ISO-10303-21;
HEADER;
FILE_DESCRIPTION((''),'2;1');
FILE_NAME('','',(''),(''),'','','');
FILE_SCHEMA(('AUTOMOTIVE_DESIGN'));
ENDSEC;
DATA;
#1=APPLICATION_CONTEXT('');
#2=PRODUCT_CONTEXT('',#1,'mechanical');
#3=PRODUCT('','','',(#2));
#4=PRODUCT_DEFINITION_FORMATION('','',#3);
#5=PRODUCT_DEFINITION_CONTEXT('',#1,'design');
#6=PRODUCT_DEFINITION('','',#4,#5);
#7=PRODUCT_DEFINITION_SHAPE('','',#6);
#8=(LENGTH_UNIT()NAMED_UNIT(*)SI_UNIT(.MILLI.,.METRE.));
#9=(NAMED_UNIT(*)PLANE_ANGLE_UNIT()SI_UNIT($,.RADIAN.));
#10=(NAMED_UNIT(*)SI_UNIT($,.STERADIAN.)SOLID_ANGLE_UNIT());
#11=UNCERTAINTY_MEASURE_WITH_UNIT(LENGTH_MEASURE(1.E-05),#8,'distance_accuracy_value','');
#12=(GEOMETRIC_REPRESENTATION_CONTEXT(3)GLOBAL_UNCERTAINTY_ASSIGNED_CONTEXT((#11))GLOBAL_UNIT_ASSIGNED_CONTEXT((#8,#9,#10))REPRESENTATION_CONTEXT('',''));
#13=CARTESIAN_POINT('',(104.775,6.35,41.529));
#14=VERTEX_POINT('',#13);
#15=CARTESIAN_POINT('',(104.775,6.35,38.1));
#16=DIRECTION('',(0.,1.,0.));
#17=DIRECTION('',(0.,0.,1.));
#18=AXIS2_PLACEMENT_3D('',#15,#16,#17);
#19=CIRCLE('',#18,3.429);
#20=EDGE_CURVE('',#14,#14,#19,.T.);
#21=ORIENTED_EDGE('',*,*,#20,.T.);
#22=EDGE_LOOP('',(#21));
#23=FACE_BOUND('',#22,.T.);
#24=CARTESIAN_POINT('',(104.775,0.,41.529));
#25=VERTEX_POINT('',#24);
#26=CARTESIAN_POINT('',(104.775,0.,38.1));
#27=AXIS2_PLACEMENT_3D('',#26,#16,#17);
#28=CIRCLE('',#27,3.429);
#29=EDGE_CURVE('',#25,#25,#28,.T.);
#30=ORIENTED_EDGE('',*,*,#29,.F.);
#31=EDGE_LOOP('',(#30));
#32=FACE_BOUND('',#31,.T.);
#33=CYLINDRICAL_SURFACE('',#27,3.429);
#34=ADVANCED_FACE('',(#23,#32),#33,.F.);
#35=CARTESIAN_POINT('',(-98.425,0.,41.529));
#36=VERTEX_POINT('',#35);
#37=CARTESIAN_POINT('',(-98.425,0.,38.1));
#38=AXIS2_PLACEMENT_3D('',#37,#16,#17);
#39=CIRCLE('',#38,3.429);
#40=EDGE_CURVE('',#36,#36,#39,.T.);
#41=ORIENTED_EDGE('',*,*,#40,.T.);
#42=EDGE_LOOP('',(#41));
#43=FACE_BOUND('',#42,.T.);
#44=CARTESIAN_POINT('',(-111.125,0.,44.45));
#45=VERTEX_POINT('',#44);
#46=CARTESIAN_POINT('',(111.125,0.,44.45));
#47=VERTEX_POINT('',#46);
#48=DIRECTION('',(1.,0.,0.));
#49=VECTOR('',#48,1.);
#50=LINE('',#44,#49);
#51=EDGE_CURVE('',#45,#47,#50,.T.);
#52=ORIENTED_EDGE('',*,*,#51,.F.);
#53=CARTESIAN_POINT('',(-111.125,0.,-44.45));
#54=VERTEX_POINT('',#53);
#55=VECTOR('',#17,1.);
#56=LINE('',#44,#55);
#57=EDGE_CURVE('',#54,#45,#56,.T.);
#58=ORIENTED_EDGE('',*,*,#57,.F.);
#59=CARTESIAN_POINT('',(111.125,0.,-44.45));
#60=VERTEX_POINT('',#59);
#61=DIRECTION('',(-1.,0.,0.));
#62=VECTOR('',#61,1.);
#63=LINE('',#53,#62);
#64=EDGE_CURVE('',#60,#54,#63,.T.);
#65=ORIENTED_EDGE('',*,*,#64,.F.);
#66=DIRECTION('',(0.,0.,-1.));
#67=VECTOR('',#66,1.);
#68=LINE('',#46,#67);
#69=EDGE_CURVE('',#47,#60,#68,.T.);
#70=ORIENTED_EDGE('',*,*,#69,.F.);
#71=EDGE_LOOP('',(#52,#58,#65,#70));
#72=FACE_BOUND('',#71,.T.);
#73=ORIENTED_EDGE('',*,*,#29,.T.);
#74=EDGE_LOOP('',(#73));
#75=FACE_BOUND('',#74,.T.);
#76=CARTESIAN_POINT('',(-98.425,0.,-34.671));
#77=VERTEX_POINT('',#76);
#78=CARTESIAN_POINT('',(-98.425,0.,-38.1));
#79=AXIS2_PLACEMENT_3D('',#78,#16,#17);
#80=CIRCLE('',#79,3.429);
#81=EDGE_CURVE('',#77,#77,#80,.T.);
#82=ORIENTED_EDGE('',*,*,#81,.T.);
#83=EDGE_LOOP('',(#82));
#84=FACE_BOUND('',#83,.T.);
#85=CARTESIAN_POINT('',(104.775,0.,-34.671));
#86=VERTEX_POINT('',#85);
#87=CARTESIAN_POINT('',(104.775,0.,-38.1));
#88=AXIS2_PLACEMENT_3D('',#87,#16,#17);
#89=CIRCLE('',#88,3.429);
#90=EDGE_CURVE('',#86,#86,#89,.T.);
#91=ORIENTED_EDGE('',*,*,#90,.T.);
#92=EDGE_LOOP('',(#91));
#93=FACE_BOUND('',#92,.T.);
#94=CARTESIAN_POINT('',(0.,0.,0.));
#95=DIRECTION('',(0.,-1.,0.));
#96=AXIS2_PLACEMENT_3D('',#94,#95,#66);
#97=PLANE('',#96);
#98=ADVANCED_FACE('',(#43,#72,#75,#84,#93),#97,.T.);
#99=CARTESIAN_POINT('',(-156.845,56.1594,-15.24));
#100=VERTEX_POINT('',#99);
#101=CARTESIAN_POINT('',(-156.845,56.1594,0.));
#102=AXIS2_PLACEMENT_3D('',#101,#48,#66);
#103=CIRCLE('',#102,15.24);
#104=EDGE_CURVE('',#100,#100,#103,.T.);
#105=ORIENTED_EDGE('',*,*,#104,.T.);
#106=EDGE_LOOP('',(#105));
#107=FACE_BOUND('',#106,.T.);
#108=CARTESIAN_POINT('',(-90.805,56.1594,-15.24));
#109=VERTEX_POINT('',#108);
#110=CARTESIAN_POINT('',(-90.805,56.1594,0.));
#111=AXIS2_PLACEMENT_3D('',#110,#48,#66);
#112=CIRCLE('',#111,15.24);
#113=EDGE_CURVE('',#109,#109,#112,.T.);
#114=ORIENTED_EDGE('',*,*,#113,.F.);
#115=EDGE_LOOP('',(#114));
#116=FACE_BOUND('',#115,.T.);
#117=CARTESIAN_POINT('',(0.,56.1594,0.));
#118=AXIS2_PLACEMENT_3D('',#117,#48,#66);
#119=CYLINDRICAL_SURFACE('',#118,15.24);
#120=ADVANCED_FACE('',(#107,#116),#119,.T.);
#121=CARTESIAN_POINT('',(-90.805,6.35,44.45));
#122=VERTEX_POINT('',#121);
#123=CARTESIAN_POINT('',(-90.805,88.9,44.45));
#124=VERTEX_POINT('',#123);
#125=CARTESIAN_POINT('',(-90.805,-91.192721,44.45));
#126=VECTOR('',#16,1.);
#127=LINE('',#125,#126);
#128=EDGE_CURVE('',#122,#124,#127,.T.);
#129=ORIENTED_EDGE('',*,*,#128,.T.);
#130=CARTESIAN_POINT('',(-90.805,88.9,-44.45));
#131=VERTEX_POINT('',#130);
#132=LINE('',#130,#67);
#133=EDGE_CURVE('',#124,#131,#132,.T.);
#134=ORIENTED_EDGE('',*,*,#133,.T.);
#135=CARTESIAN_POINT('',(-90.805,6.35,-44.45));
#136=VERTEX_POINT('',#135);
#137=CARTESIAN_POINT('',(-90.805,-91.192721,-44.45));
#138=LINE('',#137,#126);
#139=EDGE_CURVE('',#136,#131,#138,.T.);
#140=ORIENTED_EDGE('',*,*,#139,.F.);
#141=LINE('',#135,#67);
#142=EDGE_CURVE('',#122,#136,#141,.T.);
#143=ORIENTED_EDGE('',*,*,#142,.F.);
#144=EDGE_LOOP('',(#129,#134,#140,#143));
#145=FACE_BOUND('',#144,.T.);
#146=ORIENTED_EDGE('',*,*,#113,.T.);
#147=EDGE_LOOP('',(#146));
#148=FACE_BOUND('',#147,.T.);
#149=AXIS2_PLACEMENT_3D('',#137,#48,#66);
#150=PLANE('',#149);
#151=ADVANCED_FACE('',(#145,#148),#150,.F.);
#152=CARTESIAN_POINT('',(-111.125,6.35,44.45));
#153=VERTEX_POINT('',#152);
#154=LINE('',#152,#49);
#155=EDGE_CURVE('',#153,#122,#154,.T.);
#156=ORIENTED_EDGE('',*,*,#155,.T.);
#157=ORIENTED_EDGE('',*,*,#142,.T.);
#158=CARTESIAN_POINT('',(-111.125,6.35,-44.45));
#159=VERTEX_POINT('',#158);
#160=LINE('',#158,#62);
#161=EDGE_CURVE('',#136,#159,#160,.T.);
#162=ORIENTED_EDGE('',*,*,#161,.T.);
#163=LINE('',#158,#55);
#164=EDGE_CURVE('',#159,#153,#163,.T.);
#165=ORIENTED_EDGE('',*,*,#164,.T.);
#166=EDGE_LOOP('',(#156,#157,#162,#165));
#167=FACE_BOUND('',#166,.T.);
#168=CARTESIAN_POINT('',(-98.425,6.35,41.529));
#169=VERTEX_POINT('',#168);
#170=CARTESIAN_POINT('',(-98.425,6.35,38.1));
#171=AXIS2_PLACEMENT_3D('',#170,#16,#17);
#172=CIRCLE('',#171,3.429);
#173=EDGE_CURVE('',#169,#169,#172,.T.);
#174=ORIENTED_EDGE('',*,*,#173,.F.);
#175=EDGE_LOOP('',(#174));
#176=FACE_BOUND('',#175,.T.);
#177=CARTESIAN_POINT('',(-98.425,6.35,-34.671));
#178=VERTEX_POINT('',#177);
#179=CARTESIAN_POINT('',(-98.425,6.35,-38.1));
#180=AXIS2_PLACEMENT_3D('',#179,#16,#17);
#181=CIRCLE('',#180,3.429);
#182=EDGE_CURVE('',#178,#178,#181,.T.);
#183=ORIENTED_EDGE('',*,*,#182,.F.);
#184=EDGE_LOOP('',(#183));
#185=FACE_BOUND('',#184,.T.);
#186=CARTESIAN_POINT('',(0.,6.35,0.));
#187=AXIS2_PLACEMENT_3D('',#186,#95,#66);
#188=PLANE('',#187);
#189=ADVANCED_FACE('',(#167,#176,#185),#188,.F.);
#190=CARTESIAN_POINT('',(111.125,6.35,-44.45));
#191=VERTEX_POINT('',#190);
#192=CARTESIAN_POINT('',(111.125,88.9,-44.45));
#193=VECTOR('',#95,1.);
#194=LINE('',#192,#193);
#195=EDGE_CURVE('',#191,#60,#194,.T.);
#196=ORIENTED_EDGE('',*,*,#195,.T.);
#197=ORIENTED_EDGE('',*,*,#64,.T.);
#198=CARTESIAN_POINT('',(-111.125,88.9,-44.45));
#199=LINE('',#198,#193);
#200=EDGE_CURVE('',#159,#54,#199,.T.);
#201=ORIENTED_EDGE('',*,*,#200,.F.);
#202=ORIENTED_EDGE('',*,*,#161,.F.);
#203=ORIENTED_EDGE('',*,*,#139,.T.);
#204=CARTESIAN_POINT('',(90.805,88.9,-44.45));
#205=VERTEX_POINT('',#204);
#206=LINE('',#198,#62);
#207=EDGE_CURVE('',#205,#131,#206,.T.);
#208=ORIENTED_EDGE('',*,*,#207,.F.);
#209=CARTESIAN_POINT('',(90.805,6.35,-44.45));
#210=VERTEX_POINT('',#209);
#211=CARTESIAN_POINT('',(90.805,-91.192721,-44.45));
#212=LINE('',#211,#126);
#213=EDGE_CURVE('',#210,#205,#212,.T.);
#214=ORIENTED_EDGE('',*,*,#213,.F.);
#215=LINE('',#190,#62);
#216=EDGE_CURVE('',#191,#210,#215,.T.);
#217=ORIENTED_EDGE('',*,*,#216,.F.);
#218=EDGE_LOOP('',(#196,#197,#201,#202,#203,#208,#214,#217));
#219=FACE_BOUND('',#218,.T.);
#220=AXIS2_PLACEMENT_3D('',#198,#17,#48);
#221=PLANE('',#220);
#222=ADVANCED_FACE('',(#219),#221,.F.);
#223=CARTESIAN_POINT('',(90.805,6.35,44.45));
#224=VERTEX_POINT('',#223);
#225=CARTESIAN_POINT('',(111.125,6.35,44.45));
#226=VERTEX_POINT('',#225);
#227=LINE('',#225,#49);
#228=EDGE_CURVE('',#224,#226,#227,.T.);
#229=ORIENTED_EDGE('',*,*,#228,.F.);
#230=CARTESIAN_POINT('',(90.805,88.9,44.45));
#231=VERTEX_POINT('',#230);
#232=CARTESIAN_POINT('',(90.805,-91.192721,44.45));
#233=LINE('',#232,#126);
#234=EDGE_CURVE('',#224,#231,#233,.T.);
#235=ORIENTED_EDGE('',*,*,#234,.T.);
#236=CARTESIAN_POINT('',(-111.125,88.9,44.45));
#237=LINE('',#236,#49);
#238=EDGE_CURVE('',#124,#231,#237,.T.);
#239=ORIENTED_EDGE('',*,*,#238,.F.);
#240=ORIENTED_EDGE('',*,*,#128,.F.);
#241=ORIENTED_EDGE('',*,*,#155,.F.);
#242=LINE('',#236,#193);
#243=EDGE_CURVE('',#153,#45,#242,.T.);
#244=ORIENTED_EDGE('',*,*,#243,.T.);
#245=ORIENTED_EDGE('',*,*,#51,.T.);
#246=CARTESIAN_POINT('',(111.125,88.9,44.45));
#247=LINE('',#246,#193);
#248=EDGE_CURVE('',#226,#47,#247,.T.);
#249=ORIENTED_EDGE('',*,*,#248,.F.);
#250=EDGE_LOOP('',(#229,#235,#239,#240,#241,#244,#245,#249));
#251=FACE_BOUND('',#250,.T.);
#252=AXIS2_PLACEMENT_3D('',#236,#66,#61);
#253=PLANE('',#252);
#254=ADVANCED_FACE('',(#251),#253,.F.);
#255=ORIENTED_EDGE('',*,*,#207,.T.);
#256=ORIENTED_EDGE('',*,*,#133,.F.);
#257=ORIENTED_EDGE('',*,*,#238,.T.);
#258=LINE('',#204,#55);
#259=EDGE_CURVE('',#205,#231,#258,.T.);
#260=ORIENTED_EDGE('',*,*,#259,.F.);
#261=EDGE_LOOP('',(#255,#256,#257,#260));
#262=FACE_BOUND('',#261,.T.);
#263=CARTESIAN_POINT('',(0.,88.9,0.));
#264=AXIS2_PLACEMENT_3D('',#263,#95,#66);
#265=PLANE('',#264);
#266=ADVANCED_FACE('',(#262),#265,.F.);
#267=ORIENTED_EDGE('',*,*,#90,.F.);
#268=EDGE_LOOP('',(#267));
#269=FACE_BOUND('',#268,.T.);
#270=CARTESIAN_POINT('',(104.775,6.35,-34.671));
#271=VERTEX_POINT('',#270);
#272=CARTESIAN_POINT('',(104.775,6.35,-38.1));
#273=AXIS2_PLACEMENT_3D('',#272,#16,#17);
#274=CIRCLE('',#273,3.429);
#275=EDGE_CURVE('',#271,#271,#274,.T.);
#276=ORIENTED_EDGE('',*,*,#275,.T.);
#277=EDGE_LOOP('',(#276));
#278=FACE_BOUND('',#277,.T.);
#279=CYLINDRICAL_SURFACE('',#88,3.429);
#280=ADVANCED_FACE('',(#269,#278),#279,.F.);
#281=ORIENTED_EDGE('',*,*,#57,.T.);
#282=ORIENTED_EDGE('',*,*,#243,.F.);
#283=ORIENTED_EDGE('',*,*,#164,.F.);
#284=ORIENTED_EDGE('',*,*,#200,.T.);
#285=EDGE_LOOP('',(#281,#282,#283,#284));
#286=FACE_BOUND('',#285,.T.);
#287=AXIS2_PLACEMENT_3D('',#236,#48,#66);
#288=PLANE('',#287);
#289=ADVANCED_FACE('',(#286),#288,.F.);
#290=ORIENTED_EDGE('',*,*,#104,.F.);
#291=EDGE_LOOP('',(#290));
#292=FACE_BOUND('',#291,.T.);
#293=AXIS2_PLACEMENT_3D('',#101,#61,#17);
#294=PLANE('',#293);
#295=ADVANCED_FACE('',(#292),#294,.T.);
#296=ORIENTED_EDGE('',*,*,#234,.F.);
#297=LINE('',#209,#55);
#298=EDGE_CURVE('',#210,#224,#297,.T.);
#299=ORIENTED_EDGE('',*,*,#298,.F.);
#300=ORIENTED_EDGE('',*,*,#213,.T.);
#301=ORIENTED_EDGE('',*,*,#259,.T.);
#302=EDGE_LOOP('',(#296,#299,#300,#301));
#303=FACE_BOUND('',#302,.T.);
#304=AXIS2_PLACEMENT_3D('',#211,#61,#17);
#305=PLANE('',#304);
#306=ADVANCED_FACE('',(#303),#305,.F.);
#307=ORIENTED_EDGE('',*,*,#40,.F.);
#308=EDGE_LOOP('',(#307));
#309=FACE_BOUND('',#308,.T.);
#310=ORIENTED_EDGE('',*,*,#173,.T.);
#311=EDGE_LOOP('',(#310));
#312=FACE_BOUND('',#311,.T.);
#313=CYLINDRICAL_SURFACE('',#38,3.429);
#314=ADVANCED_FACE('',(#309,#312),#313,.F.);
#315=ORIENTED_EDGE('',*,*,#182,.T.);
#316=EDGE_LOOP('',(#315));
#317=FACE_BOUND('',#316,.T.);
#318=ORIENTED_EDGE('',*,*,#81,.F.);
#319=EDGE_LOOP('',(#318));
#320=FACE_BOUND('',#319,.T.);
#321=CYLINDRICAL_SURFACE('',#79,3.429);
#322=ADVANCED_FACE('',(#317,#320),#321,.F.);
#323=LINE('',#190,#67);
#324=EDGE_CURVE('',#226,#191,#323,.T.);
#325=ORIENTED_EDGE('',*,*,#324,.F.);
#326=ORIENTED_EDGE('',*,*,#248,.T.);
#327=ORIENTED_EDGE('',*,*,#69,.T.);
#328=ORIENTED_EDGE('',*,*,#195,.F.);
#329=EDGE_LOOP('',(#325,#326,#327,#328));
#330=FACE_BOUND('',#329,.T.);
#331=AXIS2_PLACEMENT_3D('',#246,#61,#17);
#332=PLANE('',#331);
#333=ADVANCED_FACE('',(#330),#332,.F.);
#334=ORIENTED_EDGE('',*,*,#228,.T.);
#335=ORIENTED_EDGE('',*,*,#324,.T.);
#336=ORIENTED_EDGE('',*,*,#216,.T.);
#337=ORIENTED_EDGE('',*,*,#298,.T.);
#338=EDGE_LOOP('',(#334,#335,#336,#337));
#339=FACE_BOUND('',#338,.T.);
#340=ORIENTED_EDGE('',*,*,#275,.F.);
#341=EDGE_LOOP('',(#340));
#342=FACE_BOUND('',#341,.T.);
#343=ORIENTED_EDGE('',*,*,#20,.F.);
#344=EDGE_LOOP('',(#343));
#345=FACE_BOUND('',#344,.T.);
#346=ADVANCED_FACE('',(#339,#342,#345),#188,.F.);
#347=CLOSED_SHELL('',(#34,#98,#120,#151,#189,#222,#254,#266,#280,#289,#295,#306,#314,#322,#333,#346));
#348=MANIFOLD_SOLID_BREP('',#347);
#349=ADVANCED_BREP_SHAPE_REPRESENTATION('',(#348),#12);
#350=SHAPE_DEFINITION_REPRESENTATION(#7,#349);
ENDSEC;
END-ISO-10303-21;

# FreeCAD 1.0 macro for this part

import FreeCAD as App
import Part
import Sketcher

V = App.Vector
Q = App.Units.Quantity

doc = App.newDocument("Part")
body = doc.addObject("PartDesign::Body", "Body")

# Sketch on XZ plane
sketch1 = body.newObject("Sketcher::SketchObject", "Sketch")
sketch1.AttachmentSupport = (doc.getObject("XZ_Plane"), [""])
sketch1.MapMode = "FlatFace"
sketch1.addGeometry([
    Part.LineSegment(V(-111, -44, 0), V(-111, 44, 0)),
    Part.LineSegment(V(-111, 44, 0), V(111, 44, 0)),
    Part.LineSegment(V(111, 44, 0), V(111, -44, 0)),
    Part.LineSegment(V(111, -44, 0), V(-111, -44, 0)),
], False)
sketch1.addConstraint([
    Sketcher.Constraint("Coincident", 0, 2, 1, 1),
    Sketcher.Constraint("Coincident", 1, 2, 2, 1),
    Sketcher.Constraint("Coincident", 2, 2, 3, 1),
    Sketcher.Constraint("Coincident", 3, 2, 0, 1),
    Sketcher.Constraint("Vertical", 0),
    Sketcher.Constraint("Horizontal", 1),
    Sketcher.Constraint("Vertical", 2),
    Sketcher.Constraint("Horizontal", 3),
    Sketcher.Constraint("Symmetric", 0, 2, 2, 2, -1, 1),
    Sketcher.Constraint("DistanceY", 0, 1, 0, 2, Q("3.5 in")),
    Sketcher.Constraint("DistanceX", 1, 1, 1, 2, Q("8.75 in")),
])
pad1 = body.newObject("PartDesign::Pad", "Pad")
pad1.Profile = sketch1
pad1.Length = Q("3.5 in")
pad1.Reversed = True

# Sketch on XZ plane
sketch2 = body.newObject("Sketcher::SketchObject", "Sketch001")
sketch2.AttachmentSupport = (doc.getObject("XZ_Plane"), [""])
sketch2.MapMode = "FlatFace"
sketch2.AttachmentOffset = App.Placement(V(0, 0, -3.5 * 25.4), App.Rotation())
sketch2.addGeometry([
    Part.LineSegment(V(-111, -44, 0), V(-111, 44, 0)),  # 0
    Part.LineSegment(V(-111, 44, 0), V(-91, 44, 0)),  # 1
    Part.LineSegment(V(-91, 44, 0), V(-91, -44, 0)),  # 2
    Part.LineSegment(V(-91, -44, 0), V(-111, -44, 0)),  # 3
    Part.LineSegment(V(91, -44, 0), V(91, 44, 0)),  # 4
    Part.LineSegment(V(91, 44, 0), V(111, 44, 0)),  # 5
    Part.LineSegment(V(111, 44, 0), V(111, -44, 0)),  # 6
    Part.LineSegment(V(111, -44, 0), V(91, -44, 0)),  # 7
], False)
sketch2.addConstraint([
    Sketcher.Constraint("Coincident", 0, 2, 1, 1),
    Sketcher.Constraint("Coincident", 1, 2, 2, 1),
    Sketcher.Constraint("Coincident", 2, 2, 3, 1),
    Sketcher.Constraint("Coincident", 3, 2, 0, 1),
    Sketcher.Constraint("Coincident", 4, 2, 5, 1),
    Sketcher.Constraint("Coincident", 5, 2, 6, 1),
    Sketcher.Constraint("Coincident", 6, 2, 7, 1),
    Sketcher.Constraint("Coincident", 7, 2, 4, 1),
    Sketcher.Constraint("Vertical", 0),
    Sketcher.Constraint("Horizontal", 1),
    Sketcher.Constraint("Vertical", 2),
    Sketcher.Constraint("Horizontal", 3),
    Sketcher.Constraint("Vertical", 4),
    Sketcher.Constraint("Horizontal", 5),
    Sketcher.Constraint("Vertical", 6),
    Sketcher.Constraint("Horizontal", 7),
    Sketcher.Constraint("Symmetric", 2, 2, 4, 2, -1, 1),
    Sketcher.Constraint("Symmetric", 0, 2, 6, 2, -1, 1),
    Sketcher.Constraint("Horizontal", 1, 2, 4, 2),
    Sketcher.Constraint("DistanceX", 1, 1, 1, 2, Q("0.8 in")),
    Sketcher.Constraint("DistanceY", 0, 1, 0, 2, Q("3.5 in")),
    Sketcher.Constraint("DistanceX", 1, 2, 4, 2, Q("7.15 in")),
])
pocket1 = body.newObject("PartDesign::Pocket", "Pocket")
pocket1.Profile = sketch2
pocket1.Length = Q("3.25 in")
pocket1.Reversed = True

# Sketch on XZ plane
sketch3 = body.newObject("Sketcher::SketchObject", "Sketch002")
sketch3.AttachmentSupport = (doc.getObject("XZ_Plane"), [""])
sketch3.MapMode = "FlatFace"
sketch3.AttachmentOffset = App.Placement(V(0, 0, -2.211 * 25.4), App.Rotation())
sketch3.addGeometry([
    Part.LineSegment(V(-157, -15, 0), V(-157, 0, 0)),
    Part.LineSegment(V(-157, 0, 0), V(0, 0, 0)),
    Part.LineSegment(V(0, 0, 0), V(0, -15, 0)),
    Part.LineSegment(V(0, -15, 0), V(-157, -15, 0)),
], False)
sketch3.addConstraint([
    Sketcher.Constraint("Coincident", 0, 2, 1, 1),
    Sketcher.Constraint("Coincident", 1, 2, 2, 1),
    Sketcher.Constraint("Coincident", 2, 2, 3, 1),
    Sketcher.Constraint("Coincident", 3, 2, 0, 1),
    Sketcher.Constraint("Vertical", 0),
    Sketcher.Constraint("Horizontal", 1),
    Sketcher.Constraint("Vertical", 2),
    Sketcher.Constraint("Horizontal", 3),
    Sketcher.Constraint("Coincident", 1, 2, -1, 1),
    Sketcher.Constraint("DistanceY", 0, 1, 0, 2, Q("0.6 in")),
    Sketcher.Constraint("DistanceX", 1, 1, 1, 2, Q("6.175 in")),
])
revolution = body.newObject("PartDesign::Revolution", "Revolution")
revolution.Profile = sketch3
revolution.ReferenceAxis = (sketch3, ["H_Axis"])
revolution.Angle = 360

# Sketch on XZ plane
sketch4 = body.newObject("Sketcher::SketchObject", "Sketch003")
sketch4.AttachmentSupport = (doc.getObject("XZ_Plane"), [""])
sketch4.MapMode = "FlatFace"
sketch4.AttachmentOffset = App.Placement(V(0, 0, -0.25 * 25.4), App.Rotation())
sketch4.addGeometry([
    Part.Circle(V(-98.4, -38.1, 0), V(0, 0, 1), 3.4),
    Part.Circle(V(104.8, -38.1, 0), V(0, 0, 1), 3.4),
    Part.Circle(V(104.8, 38.1, 0), V(0, 0, 1), 3.4),
    Part.Circle(V(-98.4, 38.1, 0), V(0, 0, 1), 3.4),
], False)
sketch4.addConstraint([
    Sketcher.Constraint("Equal", 0, 1),
    Sketcher.Constraint("Equal", 1, 2),
    Sketcher.Constraint("Equal", 2, 3),
    Sketcher.Constraint("Symmetric", 1, 3, 2, 3, -1),
    Sketcher.Constraint("Symmetric", 0, 3, 3, 3, -1),
    Sketcher.Constraint("Horizontal", 0, 3, 1, 3),
    Sketcher.Constraint("Diameter", 0, Q("0.27 in")),
    Sketcher.Constraint("DistanceX", 0, 3, 1, 3, Q("8 in")),
    Sketcher.Constraint("DistanceY", 1, 3, 2, 3, Q("3 in")),
    Sketcher.Constraint("DistanceX", 0, 3, -1, 1, Q("3.875 in")),
])
pocket2 = body.newObject("PartDesign::Pocket", "Pocket001")
pocket2.Profile = sketch4
pocket2.Type = "ThroughAll"
pocket2.Reversed = True

doc.recompute()
